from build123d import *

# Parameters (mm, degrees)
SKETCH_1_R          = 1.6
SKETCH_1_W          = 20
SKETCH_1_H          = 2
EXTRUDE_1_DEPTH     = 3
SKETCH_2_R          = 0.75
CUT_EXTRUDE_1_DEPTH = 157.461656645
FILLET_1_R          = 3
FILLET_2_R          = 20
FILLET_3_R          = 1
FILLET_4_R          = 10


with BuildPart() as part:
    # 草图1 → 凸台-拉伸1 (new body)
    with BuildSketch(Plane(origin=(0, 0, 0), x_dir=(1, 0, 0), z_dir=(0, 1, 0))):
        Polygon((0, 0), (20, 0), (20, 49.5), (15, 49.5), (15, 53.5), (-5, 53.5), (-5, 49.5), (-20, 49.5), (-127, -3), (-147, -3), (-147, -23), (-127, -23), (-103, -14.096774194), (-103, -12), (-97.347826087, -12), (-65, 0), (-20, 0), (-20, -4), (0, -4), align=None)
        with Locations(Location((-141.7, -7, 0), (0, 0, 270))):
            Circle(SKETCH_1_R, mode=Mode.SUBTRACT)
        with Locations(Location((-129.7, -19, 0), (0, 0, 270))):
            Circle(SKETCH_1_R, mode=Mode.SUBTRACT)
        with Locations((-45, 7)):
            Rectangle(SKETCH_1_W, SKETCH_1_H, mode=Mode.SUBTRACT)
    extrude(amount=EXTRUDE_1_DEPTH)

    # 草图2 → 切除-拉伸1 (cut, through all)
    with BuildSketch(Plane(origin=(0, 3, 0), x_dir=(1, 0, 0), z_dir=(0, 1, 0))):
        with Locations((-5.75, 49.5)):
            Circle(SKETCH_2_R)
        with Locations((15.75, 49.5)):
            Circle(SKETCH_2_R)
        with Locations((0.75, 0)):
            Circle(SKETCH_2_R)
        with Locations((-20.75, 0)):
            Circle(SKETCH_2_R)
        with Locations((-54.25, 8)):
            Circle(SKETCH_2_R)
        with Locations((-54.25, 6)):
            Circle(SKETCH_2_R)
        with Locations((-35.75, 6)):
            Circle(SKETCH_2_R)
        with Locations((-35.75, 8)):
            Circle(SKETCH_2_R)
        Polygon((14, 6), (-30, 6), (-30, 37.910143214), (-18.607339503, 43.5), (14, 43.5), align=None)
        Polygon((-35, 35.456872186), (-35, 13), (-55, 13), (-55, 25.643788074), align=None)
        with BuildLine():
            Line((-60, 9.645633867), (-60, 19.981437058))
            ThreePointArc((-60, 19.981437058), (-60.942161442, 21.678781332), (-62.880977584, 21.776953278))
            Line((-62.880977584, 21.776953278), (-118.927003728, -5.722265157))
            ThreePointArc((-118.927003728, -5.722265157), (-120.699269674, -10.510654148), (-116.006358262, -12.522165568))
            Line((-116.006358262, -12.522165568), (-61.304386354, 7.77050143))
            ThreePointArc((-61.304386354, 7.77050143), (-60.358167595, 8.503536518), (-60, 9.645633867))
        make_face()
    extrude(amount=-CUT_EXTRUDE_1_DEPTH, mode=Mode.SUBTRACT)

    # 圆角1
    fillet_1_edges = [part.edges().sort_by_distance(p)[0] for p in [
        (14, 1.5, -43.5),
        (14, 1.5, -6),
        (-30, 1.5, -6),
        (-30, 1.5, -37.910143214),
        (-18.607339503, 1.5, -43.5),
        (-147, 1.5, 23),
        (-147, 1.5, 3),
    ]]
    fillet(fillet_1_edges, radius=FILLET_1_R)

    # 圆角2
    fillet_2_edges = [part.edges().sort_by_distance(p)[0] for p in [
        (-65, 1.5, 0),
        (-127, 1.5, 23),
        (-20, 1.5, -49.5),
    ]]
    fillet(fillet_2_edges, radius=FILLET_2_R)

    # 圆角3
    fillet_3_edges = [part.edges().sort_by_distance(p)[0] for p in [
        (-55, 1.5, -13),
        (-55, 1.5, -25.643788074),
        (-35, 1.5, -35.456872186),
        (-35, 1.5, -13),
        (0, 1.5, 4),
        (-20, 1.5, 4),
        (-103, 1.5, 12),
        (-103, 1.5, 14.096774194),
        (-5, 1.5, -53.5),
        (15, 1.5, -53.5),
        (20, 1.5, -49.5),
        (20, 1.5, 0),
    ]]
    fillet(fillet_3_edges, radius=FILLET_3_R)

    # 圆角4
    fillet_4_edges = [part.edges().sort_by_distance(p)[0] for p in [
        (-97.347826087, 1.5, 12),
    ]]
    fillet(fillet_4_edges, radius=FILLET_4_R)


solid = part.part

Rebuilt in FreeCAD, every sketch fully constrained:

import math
import FreeCAD as App
import Part
import Sketcher
from FreeCAD import Vector


def edges_at(feature, points):
    """Names of the edges that pass closest to the given points."""
    edges = feature.Shape.Edges
    near = lambda p: min(range(len(edges)), key=lambda i: edges[i].distToShape(Part.Vertex(*p))[0])
    return sorted({f"Edge{near(p) + 1}" for p in points})


def add_polygon(sketch, points):
    """Adds a closed chain of lines whose ends are joined by coincident constraints."""
    first, n = sketch.GeometryCount, len(points)
    for a, b in zip(points, points[1:] + points[:1]):
        sketch.addGeometry(Part.LineSegment(App.Vector(*a, 0), App.Vector(*b, 0)), False)
    for i in range(n):
        sketch.addConstraint(Sketcher.Constraint("Coincident", first + i, 2, first + (i + 1) % n, 1))

doc = App.newDocument("Part")
body = doc.addObject("PartDesign::Body", "Body")

sketch1 = doc.addObject("Sketcher::SketchObject", "Sketch")
body.addObject(sketch1)
sketch1.AttachmentSupport = (doc.XZ_Plane, [""])
sketch1.MapMode = "FlatFace"
add_polygon(sketch1, [(0, 0), (20, 0), (20, -49.5), (15, -49.5), (15, -53.5), (-5, -53.5), (-5, -49.5), (-20, -49.5), (-127, 3), (-147, 3), (-147, 23), (-127, 23), (-103, 14.096774), (-103, 12), (-97.347826, 12), (-65, 0), (-20, 0), (-20, 4), (0, 4)])
sketch1.addGeometry(Part.Circle(Vector(-129.7, 19, 0), Vector(0, 0, 1), 1.6), False)
sketch1.addGeometry(Part.Circle(Vector(-141.7, 7, 0), Vector(0, 0, 1), 1.6), False)
add_polygon(sketch1, [(-35, -6), (-55, -6), (-55, -8), (-35, -8)])
sketch1.addConstraint([
    Sketcher.Constraint("Horizontal", 0),
    Sketcher.Constraint("Vertical", 1),
    Sketcher.Constraint("Horizontal", 2),
    Sketcher.Constraint("Vertical", 3),
    Sketcher.Constraint("Horizontal", 4),
    Sketcher.Constraint("Vertical", 5),
    Sketcher.Constraint("Horizontal", 6),
    Sketcher.Constraint("Horizontal", 8),
    Sketcher.Constraint("Vertical", 9),
    Sketcher.Constraint("Horizontal", 10),
    Sketcher.Constraint("Vertical", 12),
    Sketcher.Constraint("Horizontal", 13),
    Sketcher.Constraint("Horizontal", 15),
    Sketcher.Constraint("Vertical", 16),
    Sketcher.Constraint("Horizontal", 17),
    Sketcher.Constraint("Vertical", 18),
    Sketcher.Constraint("Horizontal", 21),
    Sketcher.Constraint("Vertical", 22),
    Sketcher.Constraint("Horizontal", 23),
    Sketcher.Constraint("Vertical", 24),
    Sketcher.Constraint("Coincident", 18, 2, -1, 1),
    Sketcher.Constraint("Equal", 19, 20),
    Sketcher.Constraint("Symmetric", 0, 2, 15, 2, -1, 1),
    Sketcher.Constraint("Symmetric", 1, 2, 6, 2, -2),
    Sketcher.Constraint("Parallel", 11, 14),
    Sketcher.Constraint("Vertical", 7, 2, 10, 2),
    Sketcher.Constraint("Equal", 0, 4),
    Sketcher.Constraint("Equal", 4, 8),
    Sketcher.Constraint("Equal", 17, 21),
    Sketcher.Constraint("Equal", 23, 9),
    Sketcher.Constraint("Equal", 5, 16),
    Sketcher.Constraint("Diameter", 19, 3.2),
    Sketcher.Constraint("DistanceX", 0, 1, 0, 2, 20.0),
    Sketcher.Constraint("DistanceX", 2, 2, 2, 1, 5.0),
    Sketcher.Constraint("DistanceX", 15, 1, 15, 2, 45.0),
    Sketcher.Constraint("DistanceY", 3, 2, 3, 1, 4.0),
    Sketcher.Constraint("DistanceY", 22, 2, 22, 1, 2.0),
    Sketcher.Constraint("DistanceY", 1, 2, 1, 1, 49.5),
    Sketcher.Constraint("DistanceY", -1, 1, 19, 3, 19.0),
    Sketcher.Constraint("DistanceY", -1, 1, 20, 3, 7.0),
    Sketcher.Constraint("DistanceX", 7, 2, -1, 1, 127.0),
    Sketcher.Constraint("DistanceY", -1, 1, 7, 2, 3.0),
    Sketcher.Constraint("DistanceX", 11, 2, -1, 1, 103.0),
    Sketcher.Constraint("DistanceY", -1, 1, 12, 2, 12.0),
    Sketcher.Constraint("DistanceX", 21, 2, -1, 1, 55.0),
    Sketcher.Constraint("DistanceY", 21, 2, -1, 1, 6.0),
    Sketcher.Constraint("DistanceX", 20, 3, 19, 3, 12.0),
    Sketcher.Constraint("DistanceX", 19, 3, -1, 1, 129.7),
    Sketcher.Constraint("Distance", 11, 25.598192),
])
pad1 = doc.addObject("PartDesign::Pad", "Pad")
body.addObject(pad1)
pad1.Profile = sketch1
pad1.Length = 3
pad1.Reversed = True

sketch2 = doc.addObject("Sketcher::SketchObject", "Sketch001")
body.addObject(sketch2)
sketch2.AttachmentSupport = (doc.XZ_Plane, [""])
sketch2.MapMode = "FlatFace"
sketch2.AttachmentOffset = App.Placement(Vector(0, 0, -3), App.Rotation())
sketch2.addGeometry(Part.Circle(Vector(-5.75, -49.5, 0), Vector(0, 0, 1), 0.75), False)
sketch2.addGeometry(Part.Circle(Vector(15.75, -49.5, 0), Vector(0, 0, 1), 0.75), False)
sketch2.addGeometry(Part.Circle(Vector(0.75, 0, 0), Vector(0, 0, 1), 0.75), False)
sketch2.addGeometry(Part.Circle(Vector(-20.75, 0, 0), Vector(0, 0, 1), 0.75), False)
sketch2.addGeometry(Part.Circle(Vector(-54.25, -8, 0), Vector(0, 0, 1), 0.75), False)
sketch2.addGeometry(Part.Circle(Vector(-54.25, -6, 0), Vector(0, 0, 1), 0.75), False)
sketch2.addGeometry(Part.Circle(Vector(-35.75, -6, 0), Vector(0, 0, 1), 0.75), False)
sketch2.addGeometry(Part.Circle(Vector(-35.75, -8, 0), Vector(0, 0, 1), 0.75), False)
add_polygon(sketch2, [(-30, -6), (14, -6), (14, -43.5), (-18.60734, -43.5), (-30, -37.910143)])
add_polygon(sketch2, [(-35, -13), (-35, -35.456872), (-55, -25.643788), (-55, -13)])
sketch2.addGeometry(Part.LineSegment(Vector(-60, -9.645634, 0), Vector(-60, -19.981437, 0)), False)
sketch2.addGeometry(Part.ArcOfCircle(Part.Circle(Vector(-62, -19.981437, 0), Vector(0, 0, 1), 2), math.radians(-116.135072), math.radians(0)), False)
sketch2.addGeometry(Part.LineSegment(Vector(-62.880978, -21.776953, 0), Vector(-118.927004, 5.722265, 0)), False)
sketch2.addGeometry(Part.ArcOfCircle(Part.Circle(Vector(-117.294987, 9.048471, 0), Vector(0, 0, 1), 3.705013), math.radians(69.646771), math.radians(243.864928)), False)
sketch2.addGeometry(Part.LineSegment(Vector(-116.006358, 12.522166, 0), Vector(-61.304386, -7.770501, 0)), False)
sketch2.addGeometry(Part.ArcOfCircle(Part.Circle(Vector(-62, -9.645634, 0), Vector(0, 0, 1), 2), math.radians(0), math.radians(69.646771)), False)
sketch2.addConstraint([
    Sketcher.Constraint("Coincident", 17, 2, 18, 2),
    Sketcher.Constraint("Coincident", 18, 1, 19, 1),
    Sketcher.Constraint("Coincident", 19, 2, 20, 2),
    Sketcher.Constraint("Coincident", 20, 1, 21, 1),
    Sketcher.Constraint("Coincident", 21, 2, 22, 2),
    Sketcher.Constraint("Coincident", 22, 1, 17, 1),
    Sketcher.Constraint("Horizontal", 8),
    Sketcher.Constraint("Vertical", 9),
    Sketcher.Constraint("Horizontal", 10),
    Sketcher.Constraint("Vertical", 12),
    Sketcher.Constraint("Vertical", 13),
    Sketcher.Constraint("Vertical", 15),
    Sketcher.Constraint("Horizontal", 16),
    Sketcher.Constraint("Vertical", 17),
    Sketcher.Constraint("PointOnObject", 2, 3, -1),
    Sketcher.Constraint("PointOnObject", 3, 3, -1),
    Sketcher.Constraint("Radius", 18, 2.0),
    Sketcher.Constraint("Radius", 22, 2.0),
    Sketcher.Constraint("Diameter", 0, 1.5),
    Sketcher.Constraint("Diameter", 1, 1.5),
    Sketcher.Constraint("Diameter", 2, 1.5),
    Sketcher.Constraint("Diameter", 3, 1.5),
    Sketcher.Constraint("Diameter", 4, 1.5),
    Sketcher.Constraint("Diameter", 5, 1.5),
    Sketcher.Constraint("Diameter", 6, 1.5),
    Sketcher.Constraint("Diameter", 7, 1.5),
    Sketcher.Constraint("DistanceX", 8, 1, 8, 2, 44.0),
    Sketcher.Constraint("DistanceX", 16, 1, 16, 2, 20.0),
    Sketcher.Constraint("DistanceY", 9, 2, 9, 1, 37.5),
    Sketcher.Constraint("DistanceY", 4, 3, -1, 1, 8.0),
    Sketcher.Constraint("DistanceY", 5, 3, -1, 1, 6.0),
    Sketcher.Constraint("DistanceY", 6, 3, -1, 1, 6.0),
    Sketcher.Constraint("DistanceY", 7, 3, -1, 1, 8.0),
    Sketcher.Constraint("DistanceX", 18, 3, -1, 1, 62.0),
    Sketcher.Constraint("DistanceX", -1, 1, 8, 2, 14.0),
    Sketcher.Constraint("DistanceY", 8, 2, -1, 1, 6.0),
    Sketcher.Constraint("DistanceX", 13, 2, -1, 1, 35.0),
    Sketcher.Constraint("DistanceY", 15, 2, -1, 1, 13.0),
    Sketcher.Constraint("DistanceX", 2, 3, 1, 3, 15.0),
    Sketcher.Constraint("DistanceX", 3, 3, 0, 3, 15.0),
    Sketcher.Constraint("DistanceX", 4, 3, 2, 3, 55.0),
    Sketcher.Constraint("DistanceX", 5, 3, 2, 3, 55.0),
    Sketcher.Constraint("DistanceX", 6, 3, 3, 3, 15.0),
    Sketcher.Constraint("DistanceX", 7, 3, 3, 3, 15.0),
    Sketcher.Constraint("DistanceY", 1, 3, 9, 2, 6.0),
    Sketcher.Constraint("DistanceY", 0, 3, 9, 2, 6.0),
    Sketcher.Constraint("DistanceX", 0, 3, 1, 3, 21.5),
    Sketcher.Constraint("DistanceX", 0, 3, -1, 1, 5.75),
    Sketcher.Constraint("Radius", 20, 3.705013),
    Sketcher.Constraint("DistanceX", 10, 2, 10, 1, 32.60734),
    Sketcher.Constraint("DistanceY", 15, 1, 15, 2, 12.643788),
    Sketcher.Constraint("DistanceY", 21, 2, -1, 1, 7.770501),
    Sketcher.Constraint("DistanceY", 22, 3, 19, 2, 15.367899),
    Sketcher.Constraint("DistanceY", 19, 2, 20, 1, 6.7999),
    Sketcher.Constraint("Distance", 21, 58.344649),
    Sketcher.Constraint("DistanceY", 12, 1, 12, 2, 31.910143),
    Sketcher.Constraint("DistanceY", 13, 2, 13, 1, 22.456872),
    Sketcher.Constraint("DistanceY", 17, 2, 17, 1, 10.335803),
    Sketcher.Constraint("DistanceY", -1, 1, 20, 3, 9.048471),
    Sketcher.Constraint("DistanceX", 20, 1, -1, 1, 116.006358),
    Sketcher.Constraint("DistanceY", 14, 2, 18, 3, 5.662351),
    Sketcher.Constraint("DistanceY", 14, 2, 17, 2, 5.662351),
    Sketcher.Constraint("DistanceY", 18, 1, 22, 3, 12.131319),
])
pocket1 = doc.addObject("PartDesign::Pocket", "Pocket")
body.addObject(pocket1)
pocket1.Profile = sketch2
pocket1.Type = "ThroughAll"
pocket1.Reversed = True
doc.recompute()

fillet = doc.addObject("PartDesign::Fillet", "Fillet")
body.addObject(fillet)
fillet.Base = (pocket1, edges_at(pocket1, [
    (14, 1.5, -43.5),
    (14, 1.5, -6),
    (-30, 1.5, -6),
    (-30, 1.5, -37.91),
    (-18.607, 1.5, -43.5),
    (-147, 1.5, 23),
    (-147, 1.5, 3),
]))
fillet.Radius = 3
doc.recompute()

fillet2 = doc.addObject("PartDesign::Fillet", "Fillet001")
body.addObject(fillet2)
fillet2.Base = (fillet, edges_at(fillet, [(-65, 1.5, 0), (-127, 1.5, 23), (-20, 1.5, -49.5)]))
fillet2.Radius = 20
doc.recompute()

fillet3 = doc.addObject("PartDesign::Fillet", "Fillet002")
body.addObject(fillet3)
fillet3.Base = (fillet2, edges_at(fillet2, [
    (-55, 1.5, -13),
    (-55, 1.5, -25.644),
    (-35, 1.5, -35.457),
    (-35, 1.5, -13),
    (0, 1.5, 4),
    (-20, 1.5, 4),
    (-103, 1.5, 12),
    (-103, 1.5, 14.097),
    (-5, 1.5, -53.5),
    (15, 1.5, -53.5),
    (20, 1.5, -49.5),
    (20, 1.5, 0),
]))
fillet3.Radius = 1
doc.recompute()

fillet4 = doc.addObject("PartDesign::Fillet", "Fillet003")
body.addObject(fillet4)
fillet4.Base = (fillet3, edges_at(fillet3, [(-97.348, 1.5, 12)]))
fillet4.Radius = 10

doc.recompute()
